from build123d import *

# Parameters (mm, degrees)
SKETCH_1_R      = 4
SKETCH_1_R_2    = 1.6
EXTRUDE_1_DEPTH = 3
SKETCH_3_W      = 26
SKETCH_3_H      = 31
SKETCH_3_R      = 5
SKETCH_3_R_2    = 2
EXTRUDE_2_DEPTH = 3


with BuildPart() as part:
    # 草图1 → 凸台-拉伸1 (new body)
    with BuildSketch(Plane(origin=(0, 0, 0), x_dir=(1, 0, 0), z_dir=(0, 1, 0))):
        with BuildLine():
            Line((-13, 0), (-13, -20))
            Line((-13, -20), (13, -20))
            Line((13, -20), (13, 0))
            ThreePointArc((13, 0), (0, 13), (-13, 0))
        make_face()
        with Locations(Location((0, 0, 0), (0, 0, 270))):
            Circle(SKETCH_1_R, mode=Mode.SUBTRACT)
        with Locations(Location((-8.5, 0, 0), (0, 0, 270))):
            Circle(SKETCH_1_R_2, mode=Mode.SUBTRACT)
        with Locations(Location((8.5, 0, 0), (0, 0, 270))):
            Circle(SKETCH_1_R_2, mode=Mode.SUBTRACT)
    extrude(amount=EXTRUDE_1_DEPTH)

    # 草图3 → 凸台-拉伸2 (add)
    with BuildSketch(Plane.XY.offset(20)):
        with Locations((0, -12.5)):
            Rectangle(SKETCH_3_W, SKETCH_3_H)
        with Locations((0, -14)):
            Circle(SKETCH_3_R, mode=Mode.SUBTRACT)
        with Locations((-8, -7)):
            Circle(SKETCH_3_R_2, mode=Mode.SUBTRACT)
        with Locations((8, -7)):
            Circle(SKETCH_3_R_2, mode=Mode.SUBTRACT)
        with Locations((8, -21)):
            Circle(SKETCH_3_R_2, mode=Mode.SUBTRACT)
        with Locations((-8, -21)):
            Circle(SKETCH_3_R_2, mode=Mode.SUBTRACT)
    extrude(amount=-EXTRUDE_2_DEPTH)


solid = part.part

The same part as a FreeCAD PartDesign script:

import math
import FreeCAD as App
import Part
import Sketcher


def add_polygon(sketch, points):
    """Adds a closed chain of lines whose ends are joined by coincident constraints."""
    first, n = sketch.GeometryCount, len(points)
    for a, b in zip(points, points[1:] + points[:1]):
        sketch.addGeometry(Part.LineSegment(App.Vector(*a, 0), App.Vector(*b, 0)), False)
    for i in range(n):
        sketch.addConstraint(Sketcher.Constraint("Coincident", first + i, 2, first + (i + 1) % n, 1))

doc = App.newDocument("Part")
body = doc.addObject("PartDesign::Body", "Body")

# Sketch on XZ plane
sketch1 = body.newObject("Sketcher::SketchObject", "Sketch")
sketch1.AttachmentSupport = (doc.getObject("XZ_Plane"), [""])
sketch1.MapMode = "FlatFace"
sketch1.addGeometry(Part.LineSegment(App.Vector(-13, 0, 0), App.Vector(-13, 20, 0)), False)
sketch1.addGeometry(Part.LineSegment(App.Vector(-13, 20, 0), App.Vector(13, 20, 0)), False)
sketch1.addGeometry(Part.LineSegment(App.Vector(13, 20, 0), App.Vector(13, 0, 0)), False)
sketch1.addGeometry(Part.ArcOfCircle(Part.Circle(App.Vector(0, 0, 0), App.Vector(0, 0, 1), 13), math.radians(180), math.radians(360)), False)
sketch1.addGeometry(Part.Circle(App.Vector(-8.5, 0, 0), App.Vector(0, 0, 1), 1.6), False)
sketch1.addGeometry(Part.Circle(App.Vector(0, 0, 0), App.Vector(0, 0, 1), 4), False)
sketch1.addGeometry(Part.Circle(App.Vector(8.5, 0, 0), App.Vector(0, 0, 1), 1.6), False)
sketch1.addConstraint(Sketcher.Constraint("Coincident", 0, 2, 1, 1))
sketch1.addConstraint(Sketcher.Constraint("Coincident", 1, 2, 2, 1))
sketch1.addConstraint(Sketcher.Constraint("Tangent", 2, 2, 3, 2))
sketch1.addConstraint(Sketcher.Constraint("Tangent", 3, 1, 0, 1))
sketch1.addConstraint(Sketcher.Constraint("Vertical", 0))
sketch1.addConstraint(Sketcher.Constraint("Horizontal", 1))
sketch1.addConstraint(Sketcher.Constraint("Vertical", 2))
sketch1.addConstraint(Sketcher.Constraint("Coincident", 3, 3, -1, 1))
sketch1.addConstraint(Sketcher.Constraint("Coincident", 5, 3, -1, 1))
sketch1.addConstraint(Sketcher.Constraint("Equal", 4, 6))
sketch1.addConstraint(Sketcher.Constraint("Symmetric", 4, 3, 6, 3, -1, 1))
sketch1.addConstraint(Sketcher.Constraint("PointOnObject", 4, 3, -1))
sketch1.addConstraint(Sketcher.Constraint("Diameter", 5, 8.0))
sketch1.addConstraint(Sketcher.Constraint("Radius", 3, 13.0))
sketch1.addConstraint(Sketcher.Constraint("Diameter", 4, 3.2))
sketch1.addConstraint(Sketcher.Constraint("DistanceY", 0, 1, 0, 2, 20.0))
sketch1.addConstraint(Sketcher.Constraint("DistanceX", 4, 3, 6, 3, 17.0))
pad1 = body.newObject("PartDesign::Pad", "Pad")
pad1.Profile = sketch1
pad1.Length = 3
pad1.Reversed = True

# Sketch on XY plane
sketch2 = body.newObject("Sketcher::SketchObject", "Sketch001")
sketch2.AttachmentSupport = (doc.getObject("XY_Plane"), [""])
sketch2.MapMode = "FlatFace"
sketch2.AttachmentOffset = App.Placement(App.Vector(0, 0, 20), App.Rotation())
add_polygon(sketch2, [(-13, 3), (-13, -28), (13, -28), (13, 3)])  # lines 0-3
sketch2.addGeometry(Part.Circle(App.Vector(-8, -21, 0), App.Vector(0, 0, 1), 2), False)  # 4
sketch2.addGeometry(Part.Circle(App.Vector(8, -21, 0), App.Vector(0, 0, 1), 2), False)  # 5
sketch2.addGeometry(Part.Circle(App.Vector(-8, -7, 0), App.Vector(0, 0, 1), 2), False)  # 6
sketch2.addGeometry(Part.Circle(App.Vector(0, -14, 0), App.Vector(0, 0, 1), 5), False)  # 7
sketch2.addGeometry(Part.Circle(App.Vector(8, -7, 0), App.Vector(0, 0, 1), 2), False)  # 8
sketch2.addConstraint(Sketcher.Constraint("Vertical", 0))
sketch2.addConstraint(Sketcher.Constraint("Horizontal", 1))
sketch2.addConstraint(Sketcher.Constraint("Vertical", 2))
sketch2.addConstraint(Sketcher.Constraint("Horizontal", 3))
sketch2.addConstraint(Sketcher.Constraint("Equal", 4, 5))
sketch2.addConstraint(Sketcher.Constraint("Equal", 5, 6))
sketch2.addConstraint(Sketcher.Constraint("Equal", 6, 8))
sketch2.addConstraint(Sketcher.Constraint("Symmetric", 4, 3, 5, 3, -2))
sketch2.addConstraint(Sketcher.Constraint("Symmetric", 6, 3, 8, 3, -2))
sketch2.addConstraint(Sketcher.Constraint("PointOnObject", 7, 3, -2))
sketch2.addConstraint(Sketcher.Constraint("Vertical", 4, 3, 6, 3))
sketch2.addConstraint(Sketcher.Constraint("Diameter", 4, 4.0))
sketch2.addConstraint(Sketcher.Constraint("Diameter", 7, 10.0))
sketch2.addConstraint(Sketcher.Constraint("DistanceX", 1, 1, 1, 2, 26.0))
sketch2.addConstraint(Sketcher.Constraint("DistanceY", 0, 2, 0, 1, 31.0))
sketch2.addConstraint(Sketcher.Constraint("DistanceX", 4, 3, -1, 1, 8.0))
sketch2.addConstraint(Sketcher.Constraint("DistanceY", 4, 3, -1, 1, 21.0))
sketch2.addConstraint(Sketcher.Constraint("DistanceY", 6, 3, -1, 1, 7.0))
sketch2.addConstraint(Sketcher.Constraint("DistanceY", 7, 3, -1, 1, 14.0))
sketch2.addConstraint(Sketcher.Constraint("DistanceX", 0, 2, -1, 1, 13.0))
sketch2.addConstraint(Sketcher.Constraint("DistanceY", 0, 2, -1, 1, 28.0))
pad2 = body.newObject("PartDesign::Pad", "Pad001")
pad2.Profile = sketch2
pad2.Length = 3
pad2.Reversed = True

doc.recompute()
